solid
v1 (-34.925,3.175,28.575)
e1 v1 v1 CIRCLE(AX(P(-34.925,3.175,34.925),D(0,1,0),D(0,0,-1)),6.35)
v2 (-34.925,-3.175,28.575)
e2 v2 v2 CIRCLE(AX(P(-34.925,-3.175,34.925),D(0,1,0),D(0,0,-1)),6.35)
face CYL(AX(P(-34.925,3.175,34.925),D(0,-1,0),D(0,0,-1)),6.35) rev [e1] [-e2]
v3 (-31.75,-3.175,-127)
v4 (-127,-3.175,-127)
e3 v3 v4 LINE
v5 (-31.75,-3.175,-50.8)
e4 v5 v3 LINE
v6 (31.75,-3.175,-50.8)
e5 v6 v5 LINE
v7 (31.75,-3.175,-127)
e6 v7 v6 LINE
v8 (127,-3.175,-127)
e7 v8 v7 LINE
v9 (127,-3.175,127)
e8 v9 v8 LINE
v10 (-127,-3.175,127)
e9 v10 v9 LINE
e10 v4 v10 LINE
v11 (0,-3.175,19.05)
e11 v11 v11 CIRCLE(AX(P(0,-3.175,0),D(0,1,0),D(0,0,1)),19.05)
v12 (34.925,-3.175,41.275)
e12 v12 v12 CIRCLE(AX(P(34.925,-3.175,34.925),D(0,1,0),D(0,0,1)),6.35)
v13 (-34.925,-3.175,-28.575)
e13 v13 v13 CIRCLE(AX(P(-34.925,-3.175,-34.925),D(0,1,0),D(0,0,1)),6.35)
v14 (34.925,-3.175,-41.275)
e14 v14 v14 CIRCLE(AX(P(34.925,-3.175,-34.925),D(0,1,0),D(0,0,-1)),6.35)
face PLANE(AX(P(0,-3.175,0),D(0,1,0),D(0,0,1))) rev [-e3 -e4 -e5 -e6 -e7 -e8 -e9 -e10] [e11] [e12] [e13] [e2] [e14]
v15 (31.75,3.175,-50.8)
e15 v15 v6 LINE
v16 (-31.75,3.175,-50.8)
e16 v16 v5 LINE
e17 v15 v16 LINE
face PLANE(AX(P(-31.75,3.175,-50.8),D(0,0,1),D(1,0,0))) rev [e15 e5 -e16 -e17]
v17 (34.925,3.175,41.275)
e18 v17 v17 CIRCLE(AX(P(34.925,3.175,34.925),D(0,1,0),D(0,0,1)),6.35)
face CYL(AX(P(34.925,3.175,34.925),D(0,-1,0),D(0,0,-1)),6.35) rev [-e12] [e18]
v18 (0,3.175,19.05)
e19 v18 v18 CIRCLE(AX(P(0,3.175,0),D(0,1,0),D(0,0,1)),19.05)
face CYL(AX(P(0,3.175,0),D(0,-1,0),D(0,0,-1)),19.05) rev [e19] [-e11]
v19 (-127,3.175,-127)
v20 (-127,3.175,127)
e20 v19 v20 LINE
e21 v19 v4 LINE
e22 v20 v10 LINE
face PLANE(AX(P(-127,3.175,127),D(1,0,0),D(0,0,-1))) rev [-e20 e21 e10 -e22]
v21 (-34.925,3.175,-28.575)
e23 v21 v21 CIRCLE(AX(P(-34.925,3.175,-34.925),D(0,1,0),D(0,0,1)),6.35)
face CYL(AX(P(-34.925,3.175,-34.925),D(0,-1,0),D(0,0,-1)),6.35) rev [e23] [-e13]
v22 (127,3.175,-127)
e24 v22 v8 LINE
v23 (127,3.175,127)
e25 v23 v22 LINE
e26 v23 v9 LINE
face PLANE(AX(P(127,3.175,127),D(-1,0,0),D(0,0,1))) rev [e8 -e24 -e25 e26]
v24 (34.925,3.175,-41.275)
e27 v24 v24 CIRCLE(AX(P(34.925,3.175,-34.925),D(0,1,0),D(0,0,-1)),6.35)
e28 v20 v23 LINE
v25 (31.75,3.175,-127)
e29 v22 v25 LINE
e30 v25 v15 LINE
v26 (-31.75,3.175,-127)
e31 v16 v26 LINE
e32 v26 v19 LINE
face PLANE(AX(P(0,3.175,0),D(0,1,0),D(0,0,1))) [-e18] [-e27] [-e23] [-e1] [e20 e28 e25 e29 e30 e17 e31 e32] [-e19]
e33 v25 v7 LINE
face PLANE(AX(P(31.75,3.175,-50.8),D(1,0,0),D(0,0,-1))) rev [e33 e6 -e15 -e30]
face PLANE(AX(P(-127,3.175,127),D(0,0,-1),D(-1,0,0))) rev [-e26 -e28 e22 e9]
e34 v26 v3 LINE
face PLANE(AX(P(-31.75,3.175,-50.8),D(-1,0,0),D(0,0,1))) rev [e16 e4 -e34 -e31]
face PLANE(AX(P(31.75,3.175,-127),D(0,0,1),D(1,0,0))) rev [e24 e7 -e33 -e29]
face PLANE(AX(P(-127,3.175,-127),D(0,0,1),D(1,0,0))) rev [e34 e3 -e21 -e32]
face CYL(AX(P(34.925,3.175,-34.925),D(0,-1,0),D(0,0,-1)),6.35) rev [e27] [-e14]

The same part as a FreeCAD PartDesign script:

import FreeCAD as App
import Part
import Sketcher
Q = App.Units.Quantity

doc = App.newDocument("Part")
body = doc.addObject("PartDesign::Body", "Body")

# Sketch on XZ plane
sketch1 = doc.addObject("Sketcher::SketchObject", "Sketch")
body.addObject(sketch1)
sketch1.AttachmentSupport = (doc.XZ_Plane, [""])
sketch1.MapMode = "FlatFace"
sketch1.addGeometry([
    Part.LineSegment(App.Vector(32, -51, 0), App.Vector(-32, -51, 0)),  # 0
    Part.LineSegment(App.Vector(-32, -51, 0), App.Vector(-32, -127, 0)),  # 1
    Part.LineSegment(App.Vector(-32, -127, 0), App.Vector(-127, -127, 0)),  # 2
    Part.LineSegment(App.Vector(-127, -127, 0), App.Vector(-127, 127, 0)),  # 3
    Part.LineSegment(App.Vector(-127, 127, 0), App.Vector(127, 127, 0)),  # 4
    Part.LineSegment(App.Vector(127, 127, 0), App.Vector(127, -127, 0)),  # 5
    Part.LineSegment(App.Vector(127, -127, 0), App.Vector(32, -127, 0)),  # 6
    Part.LineSegment(App.Vector(32, -127, 0), App.Vector(32, -51, 0)),  # 7
    Part.Circle(App.Vector(35, 35, 0), App.Vector(0, 0, 1), 6),  # 8
    Part.Circle(App.Vector(-35, 35, 0), App.Vector(0, 0, 1), 6),  # 9
    Part.Circle(App.Vector(35, -35, 0), App.Vector(0, 0, 1), 6),  # 10
    Part.Circle(App.Vector(0, 0, 0), App.Vector(0, 0, 1), 19),  # 11
    Part.Circle(App.Vector(-35, -35, 0), App.Vector(0, 0, 1), 6),  # 12
], False)
sketch1.addConstraint([
    Sketcher.Constraint("Coincident", 0, 2, 1, 1),
    Sketcher.Constraint("Coincident", 1, 2, 2, 1),
    Sketcher.Constraint("Coincident", 2, 2, 3, 1),
    Sketcher.Constraint("Coincident", 3, 2, 4, 1),
    Sketcher.Constraint("Coincident", 4, 2, 5, 1),
    Sketcher.Constraint("Coincident", 5, 2, 6, 1),
    Sketcher.Constraint("Coincident", 6, 2, 7, 1),
    Sketcher.Constraint("Coincident", 7, 2, 0, 1),
    Sketcher.Constraint("Horizontal", 0),
    Sketcher.Constraint("Vertical", 1),
    Sketcher.Constraint("Horizontal", 2),
    Sketcher.Constraint("Vertical", 3),
    Sketcher.Constraint("Horizontal", 4),
    Sketcher.Constraint("Vertical", 5),
    Sketcher.Constraint("Horizontal", 6),
    Sketcher.Constraint("Vertical", 7),
    Sketcher.Constraint("Coincident", 11, 3, -1, 1),
    Sketcher.Constraint("Equal", 8, 9),
    Sketcher.Constraint("Equal", 9, 10),
    Sketcher.Constraint("Equal", 10, 12),
    Sketcher.Constraint("Symmetric", 9, 3, 10, 3, -1, 1),
    Sketcher.Constraint("Symmetric", 8, 3, 12, 3, -1, 1),
    Sketcher.Constraint("Symmetric", 2, 2, 4, 2, -1, 1),
    Sketcher.Constraint("Symmetric", 8, 3, 9, 3, -2),
    Sketcher.Constraint("Symmetric", 1, 2, 6, 2, -2),
    Sketcher.Constraint("Equal", 4, 3),
    Sketcher.Constraint("Diameter", 8, Q("0.5 in")),
    Sketcher.Constraint("Diameter", 11, Q("1.5 in")),
    Sketcher.Constraint("DistanceX", 4, 1, 4, 2, Q("10 in")),
    Sketcher.Constraint("DistanceY", 1, 2, 1, 1, Q("3 in")),
    Sketcher.Constraint("DistanceX", 0, 2, 0, 1, Q("2.5 in")),
    Sketcher.Constraint("DistanceX", 9, 3, 8, 3, Q("2.75 in")),
    Sketcher.Constraint("DistanceY", 10, 3, 8, 3, Q("2.75 in")),
])
pad1 = doc.addObject("PartDesign::Pad", "Pad")
body.addObject(pad1)
pad1.Profile = sketch1
pad1.Length = Q("0.25 in")
pad1.Midplane = True

doc.recompute()
